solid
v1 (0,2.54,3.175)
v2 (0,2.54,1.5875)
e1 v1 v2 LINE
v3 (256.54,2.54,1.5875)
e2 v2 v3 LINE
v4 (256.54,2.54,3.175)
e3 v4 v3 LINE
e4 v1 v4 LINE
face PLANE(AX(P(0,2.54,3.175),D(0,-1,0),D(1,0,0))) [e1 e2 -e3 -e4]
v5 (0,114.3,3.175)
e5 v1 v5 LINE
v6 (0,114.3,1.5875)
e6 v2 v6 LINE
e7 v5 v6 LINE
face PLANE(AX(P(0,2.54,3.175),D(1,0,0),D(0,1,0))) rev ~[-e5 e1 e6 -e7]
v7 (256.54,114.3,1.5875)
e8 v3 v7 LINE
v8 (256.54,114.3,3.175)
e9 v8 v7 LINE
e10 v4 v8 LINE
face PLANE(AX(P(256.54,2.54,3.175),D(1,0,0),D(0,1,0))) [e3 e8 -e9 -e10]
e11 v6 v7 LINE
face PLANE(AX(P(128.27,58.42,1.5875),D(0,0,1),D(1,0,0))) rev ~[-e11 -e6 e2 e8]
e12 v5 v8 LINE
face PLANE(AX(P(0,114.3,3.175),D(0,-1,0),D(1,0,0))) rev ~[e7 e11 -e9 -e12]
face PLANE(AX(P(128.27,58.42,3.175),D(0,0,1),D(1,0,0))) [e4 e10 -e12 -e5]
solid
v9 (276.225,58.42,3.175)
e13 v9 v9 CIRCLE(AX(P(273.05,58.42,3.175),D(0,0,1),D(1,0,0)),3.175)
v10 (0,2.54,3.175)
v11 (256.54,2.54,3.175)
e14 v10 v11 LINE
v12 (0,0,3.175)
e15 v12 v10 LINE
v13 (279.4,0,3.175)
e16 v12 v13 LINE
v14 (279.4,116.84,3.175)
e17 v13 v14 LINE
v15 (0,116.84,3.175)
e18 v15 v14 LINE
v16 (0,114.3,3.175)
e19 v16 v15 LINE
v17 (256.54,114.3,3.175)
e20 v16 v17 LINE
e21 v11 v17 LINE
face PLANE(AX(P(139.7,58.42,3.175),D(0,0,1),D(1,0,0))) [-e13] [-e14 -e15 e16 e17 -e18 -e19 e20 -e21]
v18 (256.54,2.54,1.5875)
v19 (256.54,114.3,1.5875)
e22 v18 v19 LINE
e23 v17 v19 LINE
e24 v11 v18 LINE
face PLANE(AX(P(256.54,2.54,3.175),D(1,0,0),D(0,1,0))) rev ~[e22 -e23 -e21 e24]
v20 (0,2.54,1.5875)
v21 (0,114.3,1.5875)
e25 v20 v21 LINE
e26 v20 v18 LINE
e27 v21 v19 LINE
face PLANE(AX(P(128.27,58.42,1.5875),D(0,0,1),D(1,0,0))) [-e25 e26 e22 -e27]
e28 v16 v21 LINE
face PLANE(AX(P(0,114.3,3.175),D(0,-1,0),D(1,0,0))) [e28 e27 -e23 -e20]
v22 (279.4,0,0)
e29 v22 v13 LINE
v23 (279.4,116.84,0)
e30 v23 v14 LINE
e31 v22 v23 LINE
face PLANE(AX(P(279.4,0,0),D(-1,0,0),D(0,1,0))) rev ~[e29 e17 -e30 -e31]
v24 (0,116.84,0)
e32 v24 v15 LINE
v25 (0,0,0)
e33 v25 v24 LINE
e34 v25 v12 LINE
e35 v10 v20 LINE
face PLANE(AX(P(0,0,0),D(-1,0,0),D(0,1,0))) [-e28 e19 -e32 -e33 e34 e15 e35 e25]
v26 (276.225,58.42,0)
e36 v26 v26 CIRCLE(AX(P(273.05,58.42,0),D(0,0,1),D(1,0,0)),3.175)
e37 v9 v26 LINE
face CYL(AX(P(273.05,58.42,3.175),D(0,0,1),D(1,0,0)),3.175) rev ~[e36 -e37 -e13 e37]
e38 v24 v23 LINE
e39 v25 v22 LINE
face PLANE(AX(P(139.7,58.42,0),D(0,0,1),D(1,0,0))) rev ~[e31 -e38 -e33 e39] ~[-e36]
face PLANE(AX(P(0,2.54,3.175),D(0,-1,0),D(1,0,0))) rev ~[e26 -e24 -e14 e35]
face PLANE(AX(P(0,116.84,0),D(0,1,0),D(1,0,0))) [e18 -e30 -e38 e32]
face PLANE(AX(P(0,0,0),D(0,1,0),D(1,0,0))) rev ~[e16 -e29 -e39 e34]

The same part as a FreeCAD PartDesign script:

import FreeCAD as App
import Part
import Sketcher
Q = App.Units.Quantity

doc = App.newDocument("Part")
body = doc.addObject("PartDesign::Body", "Body")

sketch1 = body.newObject("Sketcher::SketchObject", "Sketch")
sketch1.AttachmentSupport = (doc.getObject("XY_Plane"), [""])
sketch1.MapMode = "FlatFace"
sketch1.addGeometry([
    Part.LineSegment(App.Vector(0, 116.84, 0), App.Vector(0, 0, 0)),
    Part.LineSegment(App.Vector(0, 0, 0), App.Vector(279.4, 0, 0)),
    Part.LineSegment(App.Vector(279.4, 0, 0), App.Vector(279.4, 116.84, 0)),
    Part.LineSegment(App.Vector(279.4, 116.84, 0), App.Vector(0, 116.84, 0)),
], False)
sketch1.addConstraint([
    Sketcher.Constraint("Coincident", 0, 2, 1, 1),
    Sketcher.Constraint("Coincident", 1, 2, 2, 1),
    Sketcher.Constraint("Coincident", 2, 2, 3, 1),
    Sketcher.Constraint("Coincident", 3, 2, 0, 1),
    Sketcher.Constraint("Vertical", 0),
    Sketcher.Constraint("Horizontal", 1),
    Sketcher.Constraint("Vertical", 2),
    Sketcher.Constraint("Horizontal", 3),
    Sketcher.Constraint("Coincident", 0, 2, -1, 1),
    Sketcher.Constraint("DistanceX", 1, 1, 1, 2, Q("11 in")),
    Sketcher.Constraint("DistanceY", 0, 2, 0, 1, Q("4.6 in")),
])
pad1 = body.newObject("PartDesign::Pad", "Pad")
pad1.Profile = sketch1
pad1.Length = Q("0.125 in")

sketch2 = body.newObject("Sketcher::SketchObject", "Sketch001")
sketch2.AttachmentSupport = (doc.getObject("XY_Plane"), [""])
sketch2.MapMode = "FlatFace"
sketch2.AttachmentOffset = App.Placement(App.Vector(0, 0, 0.125 * 25.4), App.Rotation())
sketch2.addGeometry(Part.Circle(App.Vector(273.05, 58.42, 0), App.Vector(0, 0, 1), 3.175), False)
sketch2.addConstraint([
    Sketcher.Constraint("Diameter", 0, Q("0.25 in")),
    Sketcher.Constraint("DistanceY", -1, 1, 0, 3, Q("2.3 in")),
    Sketcher.Constraint("DistanceX", -1, 1, 0, 3, Q("10.75 in")),
])
pocket1 = body.newObject("PartDesign::Pocket", "Pocket")
pocket1.Profile = sketch2
pocket1.Type = "ThroughAll"

sketch3 = body.newObject("Sketcher::SketchObject", "Sketch002")
sketch3.AttachmentSupport = (doc.getObject("XY_Plane"), [""])
sketch3.MapMode = "FlatFace"
sketch3.AttachmentOffset = App.Placement(App.Vector(0, 0, 0.125 * 25.4), App.Rotation())
sketch3.addGeometry([
    Part.LineSegment(App.Vector(0, 114.3, 0), App.Vector(0, 2.54, 0)),
    Part.LineSegment(App.Vector(0, 2.54, 0), App.Vector(256.54, 2.54, 0)),
    Part.LineSegment(App.Vector(256.54, 2.54, 0), App.Vector(256.54, 114.3, 0)),
    Part.LineSegment(App.Vector(256.54, 114.3, 0), App.Vector(0, 114.3, 0)),
], False)
sketch3.addConstraint([
    Sketcher.Constraint("Coincident", 0, 2, 1, 1),
    Sketcher.Constraint("Coincident", 1, 2, 2, 1),
    Sketcher.Constraint("Coincident", 2, 2, 3, 1),
    Sketcher.Constraint("Coincident", 3, 2, 0, 1),
    Sketcher.Constraint("Vertical", 0),
    Sketcher.Constraint("Horizontal", 1),
    Sketcher.Constraint("Vertical", 2),
    Sketcher.Constraint("Horizontal", 3),
    Sketcher.Constraint("PointOnObject", 0, 2, -2),
    Sketcher.Constraint("DistanceX", 1, 1, 1, 2, Q("10.1 in")),
    Sketcher.Constraint("DistanceY", 0, 2, 0, 1, Q("4.4 in")),
    Sketcher.Constraint("DistanceY", -1, 1, 0, 2, Q("0.1 in")),
])
pocket2 = body.newObject("PartDesign::Pocket", "Pocket001")
pocket2.Profile = sketch3
pocket2.Length = Q("0.0625 in")
body2 = doc.addObject("PartDesign::Body", "Body001")

sketch4 = body2.newObject("Sketcher::SketchObject", "Sketch003")
sketch4.AttachmentSupport = (doc.getObject("XY_Plane001"), [""])
sketch4.MapMode = "FlatFace"
sketch4.AttachmentOffset = App.Placement(App.Vector(0, 0, 0.125 * 25.4), App.Rotation())
sketch4.addGeometry([
    Part.LineSegment(App.Vector(0, 114.3, 0), App.Vector(0, 2.54, 0)),
    Part.LineSegment(App.Vector(0, 2.54, 0), App.Vector(256.54, 2.54, 0)),
    Part.LineSegment(App.Vector(256.54, 2.54, 0), App.Vector(256.54, 114.3, 0)),
    Part.LineSegment(App.Vector(256.54, 114.3, 0), App.Vector(0, 114.3, 0)),
], False)
sketch4.addConstraint([
    Sketcher.Constraint("Coincident", 0, 2, 1, 1),
    Sketcher.Constraint("Coincident", 1, 2, 2, 1),
    Sketcher.Constraint("Coincident", 2, 2, 3, 1),
    Sketcher.Constraint("Coincident", 3, 2, 0, 1),
    Sketcher.Constraint("Vertical", 0),
    Sketcher.Constraint("Horizontal", 1),
    Sketcher.Constraint("Vertical", 2),
    Sketcher.Constraint("Horizontal", 3),
    Sketcher.Constraint("PointOnObject", 0, 2, -2),
    Sketcher.Constraint("DistanceX", 1, 1, 1, 2, Q("10.1 in")),
    Sketcher.Constraint("DistanceY", 0, 2, 0, 1, Q("4.4 in")),
    Sketcher.Constraint("DistanceY", -1, 1, 0, 2, Q("0.1 in")),
])
pad2 = body2.newObject("PartDesign::Pad", "Pad001")
pad2.Profile = sketch4
pad2.Length = Q("0.0625 in")
pad2.Reversed = True

doc.recompute()
